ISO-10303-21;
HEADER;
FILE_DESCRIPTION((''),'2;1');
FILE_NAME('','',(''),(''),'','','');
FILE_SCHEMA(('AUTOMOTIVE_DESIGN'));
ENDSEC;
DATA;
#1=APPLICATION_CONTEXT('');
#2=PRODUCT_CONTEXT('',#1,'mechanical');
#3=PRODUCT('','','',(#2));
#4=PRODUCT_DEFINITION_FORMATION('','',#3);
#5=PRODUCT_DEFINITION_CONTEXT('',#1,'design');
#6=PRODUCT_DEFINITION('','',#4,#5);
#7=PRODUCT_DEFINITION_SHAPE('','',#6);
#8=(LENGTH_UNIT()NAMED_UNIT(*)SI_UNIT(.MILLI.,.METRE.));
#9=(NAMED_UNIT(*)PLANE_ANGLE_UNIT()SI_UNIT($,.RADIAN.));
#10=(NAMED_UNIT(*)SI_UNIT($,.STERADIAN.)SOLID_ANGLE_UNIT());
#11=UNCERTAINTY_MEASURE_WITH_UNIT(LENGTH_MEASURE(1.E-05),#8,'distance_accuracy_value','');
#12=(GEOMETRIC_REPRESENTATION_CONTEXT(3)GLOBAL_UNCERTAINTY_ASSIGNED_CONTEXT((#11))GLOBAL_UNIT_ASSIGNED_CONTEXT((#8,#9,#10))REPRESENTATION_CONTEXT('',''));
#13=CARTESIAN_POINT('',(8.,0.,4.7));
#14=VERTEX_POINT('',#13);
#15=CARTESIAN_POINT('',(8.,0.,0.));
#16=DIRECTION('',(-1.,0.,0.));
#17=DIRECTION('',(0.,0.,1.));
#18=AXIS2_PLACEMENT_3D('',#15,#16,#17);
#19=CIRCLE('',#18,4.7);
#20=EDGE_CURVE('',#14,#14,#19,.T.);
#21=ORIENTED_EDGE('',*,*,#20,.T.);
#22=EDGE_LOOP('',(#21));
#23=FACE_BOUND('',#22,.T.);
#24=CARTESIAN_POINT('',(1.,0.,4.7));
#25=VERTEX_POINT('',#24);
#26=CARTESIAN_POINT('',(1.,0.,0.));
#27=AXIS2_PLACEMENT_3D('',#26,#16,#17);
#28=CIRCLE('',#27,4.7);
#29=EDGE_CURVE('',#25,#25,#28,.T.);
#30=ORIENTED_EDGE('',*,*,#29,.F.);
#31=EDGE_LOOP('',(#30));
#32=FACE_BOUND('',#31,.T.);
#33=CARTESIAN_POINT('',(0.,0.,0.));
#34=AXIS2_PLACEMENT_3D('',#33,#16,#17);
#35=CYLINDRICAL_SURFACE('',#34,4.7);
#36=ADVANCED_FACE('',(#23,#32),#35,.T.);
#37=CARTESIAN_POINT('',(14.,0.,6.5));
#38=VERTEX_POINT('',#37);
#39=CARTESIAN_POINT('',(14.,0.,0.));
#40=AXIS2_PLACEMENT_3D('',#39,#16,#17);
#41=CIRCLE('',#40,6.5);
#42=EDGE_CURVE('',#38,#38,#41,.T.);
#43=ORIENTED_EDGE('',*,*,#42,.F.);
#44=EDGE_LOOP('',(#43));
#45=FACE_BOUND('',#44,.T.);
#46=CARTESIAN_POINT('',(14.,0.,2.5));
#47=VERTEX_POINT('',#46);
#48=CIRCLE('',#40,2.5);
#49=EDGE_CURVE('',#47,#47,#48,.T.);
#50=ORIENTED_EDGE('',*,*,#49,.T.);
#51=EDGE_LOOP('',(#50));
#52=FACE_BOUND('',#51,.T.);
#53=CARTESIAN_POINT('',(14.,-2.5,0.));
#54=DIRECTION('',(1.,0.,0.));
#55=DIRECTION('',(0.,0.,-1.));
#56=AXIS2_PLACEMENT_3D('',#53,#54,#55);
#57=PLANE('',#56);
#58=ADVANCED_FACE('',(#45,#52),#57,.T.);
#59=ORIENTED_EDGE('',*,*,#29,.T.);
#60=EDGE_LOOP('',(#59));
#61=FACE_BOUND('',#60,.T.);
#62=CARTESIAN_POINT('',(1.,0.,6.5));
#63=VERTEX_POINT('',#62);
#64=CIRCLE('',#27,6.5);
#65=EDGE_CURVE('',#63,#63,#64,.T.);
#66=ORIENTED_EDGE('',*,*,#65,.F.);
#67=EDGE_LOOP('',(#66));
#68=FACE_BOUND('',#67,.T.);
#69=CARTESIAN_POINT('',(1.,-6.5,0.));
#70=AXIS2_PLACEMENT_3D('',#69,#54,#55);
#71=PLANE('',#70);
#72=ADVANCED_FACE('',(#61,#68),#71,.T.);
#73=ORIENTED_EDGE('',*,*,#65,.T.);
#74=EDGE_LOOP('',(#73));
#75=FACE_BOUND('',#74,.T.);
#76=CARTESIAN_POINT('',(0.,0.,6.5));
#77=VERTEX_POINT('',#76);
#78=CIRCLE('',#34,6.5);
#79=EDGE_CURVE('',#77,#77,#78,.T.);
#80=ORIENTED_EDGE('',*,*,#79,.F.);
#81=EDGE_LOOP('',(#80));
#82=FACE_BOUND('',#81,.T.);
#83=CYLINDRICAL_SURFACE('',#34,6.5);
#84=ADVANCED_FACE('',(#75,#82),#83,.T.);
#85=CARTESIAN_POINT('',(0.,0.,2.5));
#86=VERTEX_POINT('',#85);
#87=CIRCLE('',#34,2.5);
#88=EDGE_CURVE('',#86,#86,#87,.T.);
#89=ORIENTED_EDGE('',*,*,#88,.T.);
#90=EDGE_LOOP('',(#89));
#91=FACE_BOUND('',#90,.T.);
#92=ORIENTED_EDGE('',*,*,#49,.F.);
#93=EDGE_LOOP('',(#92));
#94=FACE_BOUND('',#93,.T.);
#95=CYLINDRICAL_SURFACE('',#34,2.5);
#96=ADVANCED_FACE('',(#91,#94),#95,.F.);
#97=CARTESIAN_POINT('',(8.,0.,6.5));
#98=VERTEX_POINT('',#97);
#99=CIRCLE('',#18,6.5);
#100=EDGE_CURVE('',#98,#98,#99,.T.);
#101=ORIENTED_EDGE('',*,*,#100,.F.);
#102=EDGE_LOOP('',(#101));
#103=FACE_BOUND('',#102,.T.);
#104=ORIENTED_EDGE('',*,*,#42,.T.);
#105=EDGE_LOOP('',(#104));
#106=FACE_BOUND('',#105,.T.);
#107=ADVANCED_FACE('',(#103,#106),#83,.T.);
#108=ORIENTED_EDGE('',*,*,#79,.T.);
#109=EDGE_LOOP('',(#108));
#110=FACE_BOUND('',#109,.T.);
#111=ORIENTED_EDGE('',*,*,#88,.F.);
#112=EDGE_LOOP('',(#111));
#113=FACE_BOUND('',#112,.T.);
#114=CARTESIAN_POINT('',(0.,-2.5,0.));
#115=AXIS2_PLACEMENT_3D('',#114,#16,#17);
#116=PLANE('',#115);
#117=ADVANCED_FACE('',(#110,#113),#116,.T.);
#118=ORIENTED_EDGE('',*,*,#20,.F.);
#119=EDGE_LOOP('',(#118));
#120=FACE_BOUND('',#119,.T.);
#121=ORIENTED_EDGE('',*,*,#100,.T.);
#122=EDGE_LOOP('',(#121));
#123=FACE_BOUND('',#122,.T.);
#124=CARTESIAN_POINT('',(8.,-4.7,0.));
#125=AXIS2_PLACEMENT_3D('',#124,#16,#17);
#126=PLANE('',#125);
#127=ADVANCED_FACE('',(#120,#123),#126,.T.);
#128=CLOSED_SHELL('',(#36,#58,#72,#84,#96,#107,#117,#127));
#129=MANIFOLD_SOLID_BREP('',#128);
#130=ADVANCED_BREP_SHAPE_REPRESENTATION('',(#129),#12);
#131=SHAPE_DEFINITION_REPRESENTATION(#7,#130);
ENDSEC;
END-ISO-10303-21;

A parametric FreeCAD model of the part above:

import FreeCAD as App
import Part
import Sketcher
from FreeCAD import Vector

doc = App.newDocument("Part")
body = doc.addObject("PartDesign::Body", "Body")

sketch1 = body.newObject("Sketcher::SketchObject", "Sketch")
sketch1.AttachmentSupport = (doc.getObject("XY_Plane"), [""])
sketch1.MapMode = "FlatFace"
sketch1.addGeometry([
    Part.LineSegment(Vector(0, -2.5, 0), Vector(0, -6.5, 0)),
    Part.LineSegment(Vector(0, -6.5, 0), Vector(1, -6.5, 0)),
    Part.LineSegment(Vector(1, -6.5, 0), Vector(1, -4.7, 0)),
    Part.LineSegment(Vector(1, -4.7, 0), Vector(8, -4.7, 0)),
    Part.LineSegment(Vector(8, -4.7, 0), Vector(8, -6.5, 0)),
    Part.LineSegment(Vector(8, -6.5, 0), Vector(14, -6.5, 0)),
    Part.LineSegment(Vector(14, -6.5, 0), Vector(14, -2.5, 0)),
    Part.LineSegment(Vector(14, -2.5, 0), Vector(0, -2.5, 0)),
], False)
sketch1.addConstraint([
    Sketcher.Constraint("Coincident", 0, 2, 1, 1),
    Sketcher.Constraint("Coincident", 1, 2, 2, 1),
    Sketcher.Constraint("Coincident", 2, 2, 3, 1),
    Sketcher.Constraint("Coincident", 3, 2, 4, 1),
    Sketcher.Constraint("Coincident", 4, 2, 5, 1),
    Sketcher.Constraint("Coincident", 5, 2, 6, 1),
    Sketcher.Constraint("Coincident", 6, 2, 7, 1),
    Sketcher.Constraint("Coincident", 7, 2, 0, 1),
    Sketcher.Constraint("Vertical", 0),
    Sketcher.Constraint("Horizontal", 1),
    Sketcher.Constraint("Vertical", 2),
    Sketcher.Constraint("Horizontal", 3),
    Sketcher.Constraint("Vertical", 4),
    Sketcher.Constraint("Horizontal", 5),
    Sketcher.Constraint("Vertical", 6),
    Sketcher.Constraint("Horizontal", 7),
    Sketcher.Constraint("PointOnObject", 0, 2, -2),
    Sketcher.Constraint("Horizontal", 1, 2, 4, 2),
    Sketcher.Constraint("DistanceX", 1, 1, 1, 2, 1.0),
    Sketcher.Constraint("DistanceX", 3, 1, 3, 2, 7.0),
    Sketcher.Constraint("DistanceX", 5, 1, 5, 2, 6.0),
    Sketcher.Constraint("DistanceY", 0, 2, 0, 1, 4.0),
    Sketcher.Constraint("DistanceY", 2, 1, 2, 2, 1.8),
    Sketcher.Constraint("DistanceY", 0, 2, -1, 1, 6.5),
])
revolution = body.newObject("PartDesign::Revolution", "Revolution")
revolution.Profile = sketch1
revolution.ReferenceAxis = (sketch1, ["H_Axis"])
revolution.Angle = 360

doc.recompute()
